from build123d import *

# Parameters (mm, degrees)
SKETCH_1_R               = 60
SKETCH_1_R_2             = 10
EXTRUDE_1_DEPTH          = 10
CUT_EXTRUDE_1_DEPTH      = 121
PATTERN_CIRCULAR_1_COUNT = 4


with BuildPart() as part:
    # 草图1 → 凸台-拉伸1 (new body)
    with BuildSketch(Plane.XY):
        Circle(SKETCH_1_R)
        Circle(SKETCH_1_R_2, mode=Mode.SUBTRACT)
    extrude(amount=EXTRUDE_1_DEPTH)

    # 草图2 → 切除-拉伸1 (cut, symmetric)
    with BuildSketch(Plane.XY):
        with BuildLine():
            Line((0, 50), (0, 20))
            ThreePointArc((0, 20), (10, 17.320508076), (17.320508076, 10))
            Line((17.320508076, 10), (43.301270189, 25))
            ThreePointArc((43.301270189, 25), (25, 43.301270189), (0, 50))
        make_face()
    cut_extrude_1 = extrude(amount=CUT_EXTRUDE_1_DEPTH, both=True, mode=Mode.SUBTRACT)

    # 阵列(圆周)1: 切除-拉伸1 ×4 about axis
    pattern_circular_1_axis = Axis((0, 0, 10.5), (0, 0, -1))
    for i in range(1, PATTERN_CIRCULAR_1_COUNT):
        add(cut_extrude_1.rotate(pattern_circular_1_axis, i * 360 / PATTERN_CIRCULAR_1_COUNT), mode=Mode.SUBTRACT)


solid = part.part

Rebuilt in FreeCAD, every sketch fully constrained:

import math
import FreeCAD as App
import Part
import Sketcher
Q = App.Units.Quantity

doc = App.newDocument("Part")
body = doc.addObject("PartDesign::Body", "Body")

# Sketch on XY plane
sketch1 = body.newObject("Sketcher::SketchObject", "Sketch")
sketch1.AttachmentSupport = (doc.getObject("XY_Plane"), [""])
sketch1.MapMode = "FlatFace"
sketch1.addGeometry([
    Part.Circle(App.Vector(0, 0, 0), App.Vector(0, 0, 1), 60),
    Part.Circle(App.Vector(0, 0, 0), App.Vector(0, 0, 1), 10),
], False)
sketch1.addConstraint([
    Sketcher.Constraint("Coincident", 0, 3, -1, 1),
    Sketcher.Constraint("Coincident", 1, 3, -1, 1),
    Sketcher.Constraint("Diameter", 0, Q("120 mm")),
    Sketcher.Constraint("Diameter", 1, Q("20 mm")),
])
pad1 = body.newObject("PartDesign::Pad", "Pad")
pad1.Profile = sketch1
pad1.Length = 10

# Sketch on XY plane
sketch2 = body.newObject("Sketcher::SketchObject", "Sketch001")
sketch2.AttachmentSupport = (doc.getObject("XY_Plane"), [""])
sketch2.MapMode = "FlatFace"
sketch2.addGeometry([
    Part.LineSegment(App.Vector(0, 50, 0), App.Vector(0, 20, 0)),
    Part.ArcOfCircle(Part.Circle(App.Vector(0, 0, 0), App.Vector(0, 0, 1), 20), math.radians(30), math.radians(90)),
    Part.LineSegment(App.Vector(17.320508, 10, 0), App.Vector(43.30127, 25, 0)),
    Part.ArcOfCircle(Part.Circle(App.Vector(0, 0, 0), App.Vector(0, 0, 1), 50), math.radians(30), math.radians(90)),
], False)
sketch2.addConstraint([
    Sketcher.Constraint("Coincident", 0, 2, 1, 2),
    Sketcher.Constraint("Coincident", 1, 1, 2, 1),
    Sketcher.Constraint("Coincident", 2, 2, 3, 1),
    Sketcher.Constraint("Coincident", 3, 2, 0, 1),
    Sketcher.Constraint("Vertical", 0),
    Sketcher.Constraint("Coincident", 1, 3, -1, 1),
    Sketcher.Constraint("Coincident", 3, 3, -1, 1),
    Sketcher.Constraint("PointOnObject", 0, 2, -2),
    Sketcher.Constraint("Radius", 1, Q("20 mm")),
    Sketcher.Constraint("Radius", 3, Q("50 mm")),
    Sketcher.Constraint("Angle", 2, Q("30 deg")),
    Sketcher.Constraint("DistanceY", -1, 1, 1, 1, Q("10 mm")),
])
pocket1 = body.newObject("PartDesign::Pocket", "Pocket")
pocket1.Profile = sketch2
pocket1.Length = 242
pocket1.Midplane = True
doc.recompute()

polarpattern = body.newObject("PartDesign::PolarPattern", "PolarPattern")
polarpattern.Originals = [pocket1]
polarpattern.Axis = (doc.getObject("Z_Axis"), [""])
polarpattern.Angle = 360
polarpattern.Occurrences = 4
body.Tip = polarpattern

doc.recompute()
